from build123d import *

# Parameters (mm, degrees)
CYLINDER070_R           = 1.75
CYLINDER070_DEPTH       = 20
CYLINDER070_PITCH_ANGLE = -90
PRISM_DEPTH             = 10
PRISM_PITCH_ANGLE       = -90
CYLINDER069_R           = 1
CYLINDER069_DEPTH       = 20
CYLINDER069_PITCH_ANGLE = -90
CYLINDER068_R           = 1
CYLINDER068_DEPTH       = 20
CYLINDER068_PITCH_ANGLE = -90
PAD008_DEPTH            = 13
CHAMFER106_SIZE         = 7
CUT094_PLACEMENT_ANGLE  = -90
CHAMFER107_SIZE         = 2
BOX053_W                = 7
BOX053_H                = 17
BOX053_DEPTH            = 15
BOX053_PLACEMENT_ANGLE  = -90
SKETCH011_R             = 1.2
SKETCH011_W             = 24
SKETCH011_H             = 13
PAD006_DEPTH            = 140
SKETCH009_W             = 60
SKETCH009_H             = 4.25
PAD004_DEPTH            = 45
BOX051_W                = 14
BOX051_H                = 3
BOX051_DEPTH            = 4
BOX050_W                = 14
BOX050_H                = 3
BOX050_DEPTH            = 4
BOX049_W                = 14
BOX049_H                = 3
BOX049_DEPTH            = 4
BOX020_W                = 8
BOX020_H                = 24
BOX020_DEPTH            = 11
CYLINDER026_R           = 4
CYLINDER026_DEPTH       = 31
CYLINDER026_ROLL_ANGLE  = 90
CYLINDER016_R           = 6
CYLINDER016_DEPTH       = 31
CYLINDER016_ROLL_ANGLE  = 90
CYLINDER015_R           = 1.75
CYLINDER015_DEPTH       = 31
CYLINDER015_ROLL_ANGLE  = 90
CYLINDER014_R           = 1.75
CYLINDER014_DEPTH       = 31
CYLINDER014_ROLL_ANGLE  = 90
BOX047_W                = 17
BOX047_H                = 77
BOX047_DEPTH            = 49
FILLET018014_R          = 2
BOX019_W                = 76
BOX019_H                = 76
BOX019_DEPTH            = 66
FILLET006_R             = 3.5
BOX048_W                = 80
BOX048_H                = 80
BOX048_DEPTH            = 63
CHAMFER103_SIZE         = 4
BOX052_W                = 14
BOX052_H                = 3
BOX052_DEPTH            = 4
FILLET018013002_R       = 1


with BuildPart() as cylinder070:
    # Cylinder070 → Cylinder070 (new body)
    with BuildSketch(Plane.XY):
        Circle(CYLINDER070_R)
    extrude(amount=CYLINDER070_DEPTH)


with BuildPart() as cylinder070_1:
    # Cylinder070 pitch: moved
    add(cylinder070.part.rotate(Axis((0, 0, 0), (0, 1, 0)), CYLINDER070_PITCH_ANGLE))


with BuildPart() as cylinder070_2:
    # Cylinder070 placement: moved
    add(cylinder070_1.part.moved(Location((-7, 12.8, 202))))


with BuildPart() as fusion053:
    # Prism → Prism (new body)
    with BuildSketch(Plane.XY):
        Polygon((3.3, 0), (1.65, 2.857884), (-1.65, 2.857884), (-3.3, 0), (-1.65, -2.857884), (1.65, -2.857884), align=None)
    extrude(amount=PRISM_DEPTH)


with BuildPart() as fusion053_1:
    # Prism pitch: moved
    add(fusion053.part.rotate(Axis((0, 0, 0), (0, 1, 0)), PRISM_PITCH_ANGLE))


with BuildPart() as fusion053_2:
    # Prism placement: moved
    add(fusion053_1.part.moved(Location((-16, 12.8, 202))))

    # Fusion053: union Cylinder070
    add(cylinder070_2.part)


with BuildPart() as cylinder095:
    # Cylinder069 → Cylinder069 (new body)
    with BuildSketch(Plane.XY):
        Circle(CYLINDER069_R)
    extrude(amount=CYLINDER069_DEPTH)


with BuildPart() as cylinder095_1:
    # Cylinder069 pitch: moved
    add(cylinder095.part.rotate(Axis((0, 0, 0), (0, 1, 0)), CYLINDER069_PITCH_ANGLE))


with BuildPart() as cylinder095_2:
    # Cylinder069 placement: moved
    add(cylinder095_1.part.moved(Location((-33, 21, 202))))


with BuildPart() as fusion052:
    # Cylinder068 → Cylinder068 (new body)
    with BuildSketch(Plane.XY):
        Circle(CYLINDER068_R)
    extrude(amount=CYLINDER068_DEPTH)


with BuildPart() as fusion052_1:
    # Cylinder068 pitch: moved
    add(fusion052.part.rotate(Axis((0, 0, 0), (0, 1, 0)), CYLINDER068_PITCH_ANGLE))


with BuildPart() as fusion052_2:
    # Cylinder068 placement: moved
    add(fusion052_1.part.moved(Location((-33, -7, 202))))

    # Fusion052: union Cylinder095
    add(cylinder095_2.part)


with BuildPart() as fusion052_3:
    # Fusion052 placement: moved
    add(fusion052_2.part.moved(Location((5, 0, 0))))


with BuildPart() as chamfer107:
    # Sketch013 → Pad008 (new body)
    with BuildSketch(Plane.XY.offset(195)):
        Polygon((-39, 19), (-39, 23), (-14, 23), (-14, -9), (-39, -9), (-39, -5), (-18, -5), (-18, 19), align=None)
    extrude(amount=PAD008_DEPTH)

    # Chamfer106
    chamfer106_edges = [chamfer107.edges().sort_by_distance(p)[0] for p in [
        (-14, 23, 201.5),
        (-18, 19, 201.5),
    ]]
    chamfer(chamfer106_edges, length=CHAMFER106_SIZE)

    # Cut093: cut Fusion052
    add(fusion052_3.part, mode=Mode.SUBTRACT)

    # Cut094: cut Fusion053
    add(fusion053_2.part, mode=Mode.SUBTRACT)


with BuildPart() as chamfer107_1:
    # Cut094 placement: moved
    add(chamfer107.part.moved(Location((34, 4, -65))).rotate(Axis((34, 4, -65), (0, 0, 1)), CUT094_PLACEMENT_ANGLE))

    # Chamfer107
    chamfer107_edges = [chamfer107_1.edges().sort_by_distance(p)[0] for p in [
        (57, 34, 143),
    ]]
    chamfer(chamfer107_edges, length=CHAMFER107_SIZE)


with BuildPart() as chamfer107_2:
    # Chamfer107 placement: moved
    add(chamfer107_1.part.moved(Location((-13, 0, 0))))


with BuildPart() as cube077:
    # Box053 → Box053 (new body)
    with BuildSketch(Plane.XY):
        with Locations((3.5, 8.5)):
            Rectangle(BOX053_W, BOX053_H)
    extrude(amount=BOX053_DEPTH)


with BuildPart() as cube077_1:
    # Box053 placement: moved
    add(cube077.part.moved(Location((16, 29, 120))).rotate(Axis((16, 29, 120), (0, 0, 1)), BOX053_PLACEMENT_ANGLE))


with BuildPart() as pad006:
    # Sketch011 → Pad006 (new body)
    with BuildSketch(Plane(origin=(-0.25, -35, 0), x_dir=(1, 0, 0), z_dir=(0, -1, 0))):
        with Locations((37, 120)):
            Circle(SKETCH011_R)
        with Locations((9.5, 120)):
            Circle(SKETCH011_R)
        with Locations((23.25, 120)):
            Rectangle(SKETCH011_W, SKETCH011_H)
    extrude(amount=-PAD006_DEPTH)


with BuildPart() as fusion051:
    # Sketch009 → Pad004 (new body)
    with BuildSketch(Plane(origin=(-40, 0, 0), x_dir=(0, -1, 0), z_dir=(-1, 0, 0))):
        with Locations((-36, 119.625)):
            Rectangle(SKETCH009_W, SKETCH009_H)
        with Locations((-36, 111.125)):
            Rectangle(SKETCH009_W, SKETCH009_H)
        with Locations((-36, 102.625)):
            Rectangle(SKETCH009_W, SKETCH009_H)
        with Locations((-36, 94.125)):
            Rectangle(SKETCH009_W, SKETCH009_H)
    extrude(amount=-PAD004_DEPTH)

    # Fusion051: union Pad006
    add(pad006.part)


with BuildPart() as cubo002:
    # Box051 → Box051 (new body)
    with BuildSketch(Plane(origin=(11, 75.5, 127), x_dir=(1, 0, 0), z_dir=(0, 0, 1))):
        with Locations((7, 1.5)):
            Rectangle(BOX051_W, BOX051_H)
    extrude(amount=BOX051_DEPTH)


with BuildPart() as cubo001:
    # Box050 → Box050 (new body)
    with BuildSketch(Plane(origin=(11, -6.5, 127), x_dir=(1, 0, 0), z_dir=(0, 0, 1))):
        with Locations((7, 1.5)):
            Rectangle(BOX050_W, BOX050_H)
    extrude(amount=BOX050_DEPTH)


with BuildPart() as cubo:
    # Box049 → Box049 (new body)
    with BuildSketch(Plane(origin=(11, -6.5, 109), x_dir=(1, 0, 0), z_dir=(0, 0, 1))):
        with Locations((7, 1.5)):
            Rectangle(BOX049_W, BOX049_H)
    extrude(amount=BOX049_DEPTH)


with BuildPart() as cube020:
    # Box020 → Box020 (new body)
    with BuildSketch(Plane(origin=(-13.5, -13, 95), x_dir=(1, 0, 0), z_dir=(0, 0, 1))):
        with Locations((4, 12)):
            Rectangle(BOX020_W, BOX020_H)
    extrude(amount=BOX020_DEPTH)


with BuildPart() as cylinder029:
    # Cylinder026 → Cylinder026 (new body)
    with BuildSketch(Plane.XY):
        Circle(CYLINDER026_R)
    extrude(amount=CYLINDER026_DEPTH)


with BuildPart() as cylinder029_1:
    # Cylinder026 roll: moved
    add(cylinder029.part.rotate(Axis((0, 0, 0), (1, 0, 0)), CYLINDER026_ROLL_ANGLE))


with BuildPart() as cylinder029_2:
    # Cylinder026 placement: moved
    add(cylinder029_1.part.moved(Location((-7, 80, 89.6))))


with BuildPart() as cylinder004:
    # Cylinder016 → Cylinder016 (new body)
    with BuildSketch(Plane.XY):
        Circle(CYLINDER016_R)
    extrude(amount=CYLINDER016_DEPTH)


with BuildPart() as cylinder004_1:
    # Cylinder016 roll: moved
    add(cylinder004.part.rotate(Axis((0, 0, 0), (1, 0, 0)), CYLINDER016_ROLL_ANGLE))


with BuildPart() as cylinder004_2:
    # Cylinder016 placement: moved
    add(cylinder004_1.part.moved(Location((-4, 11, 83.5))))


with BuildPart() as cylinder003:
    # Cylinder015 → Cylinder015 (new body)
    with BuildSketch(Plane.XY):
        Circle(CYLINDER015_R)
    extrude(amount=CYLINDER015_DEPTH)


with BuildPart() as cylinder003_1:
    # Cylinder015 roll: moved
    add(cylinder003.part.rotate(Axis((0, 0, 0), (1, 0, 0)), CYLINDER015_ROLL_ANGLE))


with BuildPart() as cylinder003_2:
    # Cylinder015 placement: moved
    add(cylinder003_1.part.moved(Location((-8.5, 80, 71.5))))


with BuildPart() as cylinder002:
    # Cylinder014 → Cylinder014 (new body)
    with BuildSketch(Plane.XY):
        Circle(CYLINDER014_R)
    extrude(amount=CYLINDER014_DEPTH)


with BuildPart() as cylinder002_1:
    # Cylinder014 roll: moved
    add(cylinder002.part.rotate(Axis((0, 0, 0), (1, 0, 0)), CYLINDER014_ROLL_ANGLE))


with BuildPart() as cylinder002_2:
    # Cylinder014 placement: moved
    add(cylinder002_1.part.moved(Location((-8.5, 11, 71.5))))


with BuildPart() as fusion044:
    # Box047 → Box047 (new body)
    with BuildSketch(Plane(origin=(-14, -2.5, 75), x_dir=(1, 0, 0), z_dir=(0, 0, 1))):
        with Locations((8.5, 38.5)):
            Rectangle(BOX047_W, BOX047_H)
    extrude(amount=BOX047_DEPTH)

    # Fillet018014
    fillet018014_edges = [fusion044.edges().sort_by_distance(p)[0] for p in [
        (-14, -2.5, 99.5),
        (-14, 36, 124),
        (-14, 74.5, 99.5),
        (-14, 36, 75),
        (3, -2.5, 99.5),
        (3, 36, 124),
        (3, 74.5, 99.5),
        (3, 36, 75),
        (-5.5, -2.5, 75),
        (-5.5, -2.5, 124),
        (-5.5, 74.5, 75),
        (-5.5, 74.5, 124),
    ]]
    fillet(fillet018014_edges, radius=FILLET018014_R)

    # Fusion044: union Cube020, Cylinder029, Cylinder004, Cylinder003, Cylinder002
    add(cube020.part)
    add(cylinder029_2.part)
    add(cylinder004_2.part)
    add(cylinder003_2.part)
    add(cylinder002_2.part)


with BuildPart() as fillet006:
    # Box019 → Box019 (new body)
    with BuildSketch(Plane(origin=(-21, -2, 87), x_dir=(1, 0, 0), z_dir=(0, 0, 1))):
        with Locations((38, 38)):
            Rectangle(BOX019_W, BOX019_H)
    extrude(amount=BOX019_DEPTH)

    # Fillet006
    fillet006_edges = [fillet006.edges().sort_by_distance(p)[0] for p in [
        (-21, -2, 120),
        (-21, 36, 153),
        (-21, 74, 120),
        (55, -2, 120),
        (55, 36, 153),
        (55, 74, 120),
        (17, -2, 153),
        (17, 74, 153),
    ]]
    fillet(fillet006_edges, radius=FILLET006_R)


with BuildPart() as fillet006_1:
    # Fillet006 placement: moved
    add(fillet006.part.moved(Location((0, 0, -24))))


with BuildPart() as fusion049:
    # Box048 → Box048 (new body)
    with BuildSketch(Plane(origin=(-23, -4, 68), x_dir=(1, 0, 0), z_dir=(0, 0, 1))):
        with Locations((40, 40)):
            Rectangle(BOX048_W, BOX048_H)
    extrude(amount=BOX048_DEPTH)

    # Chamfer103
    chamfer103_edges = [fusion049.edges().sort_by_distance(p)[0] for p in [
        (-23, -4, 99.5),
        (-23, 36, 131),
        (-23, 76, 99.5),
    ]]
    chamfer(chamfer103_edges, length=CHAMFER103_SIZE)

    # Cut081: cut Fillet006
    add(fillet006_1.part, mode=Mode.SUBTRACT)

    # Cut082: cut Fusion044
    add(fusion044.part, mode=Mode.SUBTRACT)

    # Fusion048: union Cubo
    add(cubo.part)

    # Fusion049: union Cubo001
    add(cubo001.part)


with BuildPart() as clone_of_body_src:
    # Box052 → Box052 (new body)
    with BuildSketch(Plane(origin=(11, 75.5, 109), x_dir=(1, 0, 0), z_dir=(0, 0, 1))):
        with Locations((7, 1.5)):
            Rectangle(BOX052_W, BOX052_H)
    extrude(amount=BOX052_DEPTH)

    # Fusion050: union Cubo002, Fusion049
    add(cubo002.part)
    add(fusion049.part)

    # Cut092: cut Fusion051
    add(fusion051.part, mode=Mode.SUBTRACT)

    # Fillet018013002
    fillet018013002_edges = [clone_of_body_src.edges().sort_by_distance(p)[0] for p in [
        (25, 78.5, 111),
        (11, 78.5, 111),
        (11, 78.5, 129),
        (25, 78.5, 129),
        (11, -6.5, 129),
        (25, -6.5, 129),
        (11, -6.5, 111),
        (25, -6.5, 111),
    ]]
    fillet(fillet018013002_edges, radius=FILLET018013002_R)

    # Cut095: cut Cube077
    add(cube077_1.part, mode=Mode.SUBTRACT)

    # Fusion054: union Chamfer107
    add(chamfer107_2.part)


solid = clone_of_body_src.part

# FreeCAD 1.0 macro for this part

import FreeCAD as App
import Part
import Sketcher
from FreeCAD import Vector
Q = App.Units.Quantity


def edges_at(feature, points):
    """Names of the edges that pass closest to the given points."""
    edges = feature.Shape.Edges
    near = lambda p: min(range(len(edges)), key=lambda i: edges[i].distToShape(Part.Vertex(*p))[0])
    return sorted({f"Edge{near(p) + 1}" for p in points})


def add_polygon(sketch, points):
    """Adds a closed chain of lines whose ends are joined by coincident constraints."""
    first, n = sketch.GeometryCount, len(points)
    for a, b in zip(points, points[1:] + points[:1]):
        sketch.addGeometry(Part.LineSegment(App.Vector(*a, 0), App.Vector(*b, 0)), False)
    for i in range(n):
        sketch.addConstraint(Sketcher.Constraint("Coincident", first + i, 2, first + (i + 1) % n, 1))

doc = App.newDocument("Part")
body = doc.addObject("PartDesign::Body", "Body")

sketch1 = body.newObject("Sketcher::SketchObject", "Sketch")
sketch1.AttachmentSupport = (doc.getObject("XY_Plane"), [""])
sketch1.MapMode = "FlatFace"
sketch1.addGeometry(Part.Circle(Vector(0, 0, 0), Vector(0, 0, 1), 1.8), False)
sketch1.addConstraint([
    Sketcher.Constraint("Coincident", 0, 3, -1, 1),
    Sketcher.Constraint("Diameter", 0, 3.5),
])
pad1 = body.newObject("PartDesign::Pad", "Pad")
pad1.Profile = sketch1
pad1.Length = 20
body2 = doc.addObject("PartDesign::Body", "Body001")
doc.recompute()

body.Placement = App.Placement(Vector(0, 0, 0), App.Rotation(Vector(0, 1, 0), 270))
boolean = body2.newObject("PartDesign::Boolean", "Boolean")
boolean.Type = "Fuse"
boolean.addObjects([body])
body3 = doc.addObject("PartDesign::Body", "Body002")
doc.recompute()

body2.Placement = App.Placement(Vector(-7, 12.8, 202), App.Rotation(Vector(0, 0, 1), 0))
boolean2 = body3.newObject("PartDesign::Boolean", "Boolean001")
boolean2.Type = "Fuse"
boolean2.addObjects([body2])
body4 = doc.addObject("PartDesign::Body", "Body003")

sketch2 = body4.newObject("Sketcher::SketchObject", "Sketch001")
sketch2.AttachmentSupport = (doc.getObject("XY_Plane003"), [""])
sketch2.MapMode = "FlatFace"
add_polygon(sketch2, [(3.3, 0), (1.6, 2.9), (-1.6, 2.9), (-3.3, 0), (-1.6, -2.9), (1.6, -2.9)])
sketch2.addConstraint([
    Sketcher.Constraint("Horizontal", 1),
    Sketcher.Constraint("Horizontal", 4),
    Sketcher.Constraint("Symmetric", 0, 2, 3, 2, -1, 1),
    Sketcher.Constraint("Symmetric", 2, 2, 5, 2, -1, 1),
    Sketcher.Constraint("PointOnObject", 2, 2, -1),
    Sketcher.Constraint("Parallel", 2, 5),
    Sketcher.Constraint("Vertical", 1, 2, 3, 2),
    Sketcher.Constraint("Angle", 0, Q("119.999999 deg")),
    Sketcher.Constraint("DistanceX", 1, 2, 1, 1, 3.3),
    Sketcher.Constraint("Distance", 0, 3.3),
])
pad2 = body4.newObject("PartDesign::Pad", "Pad001")
pad2.Profile = sketch2
pad2.Length = 10
body5 = doc.addObject("PartDesign::Body", "Body004")
doc.recompute()

body4.Placement = App.Placement(Vector(0, 0, 0), App.Rotation(Vector(0, 1, 0), 270))
boolean3 = body5.newObject("PartDesign::Boolean", "Boolean002")
boolean3.Type = "Fuse"
boolean3.addObjects([body4])
body6 = doc.addObject("PartDesign::Body", "Body005")
doc.recompute()

body5.Placement = App.Placement(Vector(-16, 12.8, 202), App.Rotation(Vector(0, 0, 1), 0))
boolean4 = body6.newObject("PartDesign::Boolean", "Boolean003")
boolean4.Type = "Fuse"
boolean4.addObjects([body5])
doc.recompute()

boolean5 = body6.newObject("PartDesign::Boolean", "Boolean004")
boolean5.Type = "Fuse"
boolean5.addObjects([body3])
body7 = doc.addObject("PartDesign::Body", "Body006")

sketch3 = body7.newObject("Sketcher::SketchObject", "Sketch002")
sketch3.AttachmentSupport = (doc.getObject("XY_Plane006"), [""])
sketch3.MapMode = "FlatFace"
sketch3.addGeometry(Part.Circle(Vector(0, 0, 0), Vector(0, 0, 1), 1), False)
sketch3.addConstraint([
    Sketcher.Constraint("Coincident", 0, 3, -1, 1),
    Sketcher.Constraint("Diameter", 0, 2.0),
])
pad3 = body7.newObject("PartDesign::Pad", "Pad002")
pad3.Profile = sketch3
pad3.Length = 20
body8 = doc.addObject("PartDesign::Body", "Body007")
doc.recompute()

body7.Placement = App.Placement(Vector(0, 0, 0), App.Rotation(Vector(0, 1, 0), 270))
boolean6 = body8.newObject("PartDesign::Boolean", "Boolean005")
boolean6.Type = "Fuse"
boolean6.addObjects([body7])
body9 = doc.addObject("PartDesign::Body", "Body008")
doc.recompute()

body8.Placement = App.Placement(Vector(-33, 21, 202), App.Rotation(Vector(0, 0, 1), 0))
boolean7 = body9.newObject("PartDesign::Boolean", "Boolean006")
boolean7.Type = "Fuse"
boolean7.addObjects([body8])
body10 = doc.addObject("PartDesign::Body", "Body009")

sketch4 = body10.newObject("Sketcher::SketchObject", "Sketch003")
sketch4.AttachmentSupport = (doc.getObject("XY_Plane009"), [""])
sketch4.MapMode = "FlatFace"
sketch4.addGeometry(Part.Circle(Vector(0, 0, 0), Vector(0, 0, 1), 1), False)
sketch4.addConstraint([
    Sketcher.Constraint("Coincident", 0, 3, -1, 1),
    Sketcher.Constraint("Diameter", 0, 2.0),
])
pad4 = body10.newObject("PartDesign::Pad", "Pad003")
pad4.Profile = sketch4
pad4.Length = 20
body11 = doc.addObject("PartDesign::Body", "Body010")
doc.recompute()

body10.Placement = App.Placement(Vector(0, 0, 0), App.Rotation(Vector(0, 1, 0), 270))
boolean8 = body11.newObject("PartDesign::Boolean", "Boolean007")
boolean8.Type = "Fuse"
boolean8.addObjects([body10])
body12 = doc.addObject("PartDesign::Body", "Body011")
body12.AllowCompound = True
doc.recompute()

body11.Placement = App.Placement(Vector(-33, -7, 202), App.Rotation(Vector(0, 0, 1), 0))
boolean9 = body12.newObject("PartDesign::Boolean", "Boolean008")
boolean9.Type = "Fuse"
boolean9.addObjects([body11])
doc.recompute()

boolean10 = body12.newObject("PartDesign::Boolean", "Boolean009")
boolean10.Type = "Fuse"
boolean10.addObjects([body9])
body13 = doc.addObject("PartDesign::Body", "Body012")
body13.AllowCompound = True
doc.recompute()

body12.Placement = App.Placement(Vector(5, 0, 0), App.Rotation(Vector(0, 0, 1), 0))
boolean11 = body13.newObject("PartDesign::Boolean", "Boolean010")
boolean11.Type = "Fuse"
boolean11.addObjects([body12])
body14 = doc.addObject("PartDesign::Body", "Body013")

sketch5 = body14.newObject("Sketcher::SketchObject", "Sketch004")
sketch5.AttachmentSupport = (doc.getObject("XY_Plane013"), [""])
sketch5.MapMode = "FlatFace"
sketch5.AttachmentOffset = App.Placement(Vector(0, 0, 195), App.Rotation())
add_polygon(sketch5, [(-39, 23), (-39, 19), (-18, 19), (-18, -5), (-39, -5), (-39, -9), (-14, -9), (-14, 23)])
sketch5.addConstraint([
    Sketcher.Constraint("Vertical", 0),
    Sketcher.Constraint("Horizontal", 1),
    Sketcher.Constraint("Vertical", 2),
    Sketcher.Constraint("Horizontal", 3),
    Sketcher.Constraint("Vertical", 4),
    Sketcher.Constraint("Horizontal", 5),
    Sketcher.Constraint("Vertical", 6),
    Sketcher.Constraint("Horizontal", 7),
    Sketcher.Constraint("Vertical", 0, 2, 3, 2),
    Sketcher.Constraint("Equal", 0, 4),
    Sketcher.Constraint("DistanceX", 1, 1, 1, 2, 21.0),
    Sketcher.Constraint("DistanceX", 5, 1, 5, 2, 25.0),
    Sketcher.Constraint("DistanceY", 0, 2, 0, 1, 4.0),
    Sketcher.Constraint("DistanceY", 2, 2, 2, 1, 24.0),
    Sketcher.Constraint("DistanceX", 0, 2, -1, 1, 39.0),
    Sketcher.Constraint("DistanceY", -1, 1, 0, 2, 19.0),
])
pad5 = body14.newObject("PartDesign::Pad", "Pad004")
pad5.Profile = sketch5
pad5.Length = 13
doc.recompute()

chamfer = body14.newObject("PartDesign::Chamfer", "Chamfer")
chamfer.Base = (pad5, edges_at(pad5, [(-14, 23, 201.5), (-18, 19, 201.5)]))
chamfer.Size = 7
doc.recompute()

boolean12 = body14.newObject("PartDesign::Boolean", "Boolean011")
boolean12.Type = "Cut"
boolean12.addObjects([body13])
doc.recompute()

boolean13 = body14.newObject("PartDesign::Boolean", "Boolean012")
boolean13.Type = "Cut"
boolean13.addObjects([body6])
body15 = doc.addObject("PartDesign::Body", "Body014")
doc.recompute()

body14.Placement = App.Placement(Vector(34, 4, -65), App.Rotation(Vector(0, 0, 1), 270))
boolean14 = body15.newObject("PartDesign::Boolean", "Boolean013")
boolean14.Type = "Fuse"
boolean14.addObjects([body14])
doc.recompute()

chamfer2 = body15.newObject("PartDesign::Chamfer", "Chamfer001")
chamfer2.Base = (boolean14, edges_at(boolean14, [(57, 34, 143)]))
chamfer2.Size = 2
body16 = doc.addObject("PartDesign::Body", "Body015")
doc.recompute()

body15.Placement = App.Placement(Vector(-13, 0, 0), App.Rotation(Vector(0, 0, 1), 0))
boolean15 = body16.newObject("PartDesign::Boolean", "Boolean014")
boolean15.Type = "Fuse"
boolean15.addObjects([body15])
body17 = doc.addObject("PartDesign::Body", "Body016")

sketch6 = body17.newObject("Sketcher::SketchObject", "Sketch005")
sketch6.AttachmentSupport = (doc.getObject("XY_Plane016"), [""])
sketch6.MapMode = "FlatFace"
add_polygon(sketch6, [(0, 17), (0, 0), (7, 0), (7, 17)])
sketch6.addConstraint([
    Sketcher.Constraint("Vertical", 0),
    Sketcher.Constraint("Horizontal", 1),
    Sketcher.Constraint("Vertical", 2),
    Sketcher.Constraint("Horizontal", 3),
    Sketcher.Constraint("Coincident", 0, 2, -1, 1),
    Sketcher.Constraint("DistanceX", 1, 1, 1, 2, 7.0),
    Sketcher.Constraint("DistanceY", 0, 2, 0, 1, 17.0),
])
pad6 = body17.newObject("PartDesign::Pad", "Pad005")
pad6.Profile = sketch6
pad6.Length = 15
body18 = doc.addObject("PartDesign::Body", "Body017")
doc.recompute()

body17.Placement = App.Placement(Vector(16, 29, 120), App.Rotation(Vector(0, 0, 1), 270))
boolean16 = body18.newObject("PartDesign::Boolean", "Boolean015")
boolean16.Type = "Fuse"
boolean16.addObjects([body17])
body19 = doc.addObject("PartDesign::Body", "Body018")
body19.AllowCompound = True

sketch7 = body19.newObject("Sketcher::SketchObject", "Sketch006")
sketch7.AttachmentSupport = (doc.getObject("XZ_Plane018"), [""])
sketch7.MapMode = "FlatFace"
sketch7.AttachmentOffset = App.Placement(Vector(0, 0, 35), App.Rotation())
sketch7.addGeometry(Part.Circle(Vector(36.8, 120, 0), Vector(0, 0, 1), 1.2), False)
sketch7.addGeometry(Part.Circle(Vector(9.2, 120, 0), Vector(0, 0, 1), 1.2), False)
add_polygon(sketch7, [(11, 126.5), (11, 113.5), (35, 113.5), (35, 126.5)])
sketch7.addConstraint([
    Sketcher.Constraint("Vertical", 2),
    Sketcher.Constraint("Horizontal", 3),
    Sketcher.Constraint("Vertical", 4),
    Sketcher.Constraint("Horizontal", 5),
    Sketcher.Constraint("Equal", 0, 1),
    Sketcher.Constraint("Horizontal", 0, 3, 1, 3),
    Sketcher.Constraint("Diameter", 0, 2.4),
    Sketcher.Constraint("DistanceX", 3, 1, 3, 2, 24.0),
    Sketcher.Constraint("DistanceY", 2, 2, 2, 1, 13.0),
    Sketcher.Constraint("DistanceY", -1, 1, 0, 3, 120.0),
    Sketcher.Constraint("DistanceX", -1, 1, 2, 2, 11.0),
    Sketcher.Constraint("DistanceY", -1, 1, 2, 2, 113.5),
    Sketcher.Constraint("DistanceX", 1, 3, 0, 3, 27.5),
    Sketcher.Constraint("DistanceX", -1, 1, 0, 3, 36.75),
])
pad7 = body19.newObject("PartDesign::Pad", "Pad006")
pad7.Profile = sketch7
pad7.Length = 140
pad7.Reversed = True
body20 = doc.addObject("PartDesign::Body", "Body019")
body20.AllowCompound = True

sketch8 = body20.newObject("Sketcher::SketchObject", "Sketch007")
sketch8.AttachmentSupport = (doc.getObject("YZ_Plane019"), [""])
sketch8.MapMode = "FlatFace"
sketch8.AttachmentOffset = App.Placement(Vector(0, 0, -40), App.Rotation())
add_polygon(sketch8, [(66, 121.8), (66, 117.5), (6, 117.5), (6, 121.8)])
add_polygon(sketch8, [(66, 113.2), (66, 109), (6, 109), (6, 113.2)])
add_polygon(sketch8, [(66, 104.8), (66, 100.5), (6, 100.5), (6, 104.8)])
add_polygon(sketch8, [(66, 96.2), (66, 92), (6, 92), (6, 96.2)])
sketch8.addConstraint([
    Sketcher.Constraint("Vertical", 0),
    Sketcher.Constraint("Horizontal", 1),
    Sketcher.Constraint("Vertical", 2),
    Sketcher.Constraint("Horizontal", 3),
    Sketcher.Constraint("Vertical", 4),
    Sketcher.Constraint("Horizontal", 5),
    Sketcher.Constraint("Vertical", 6),
    Sketcher.Constraint("Horizontal", 7),
    Sketcher.Constraint("Vertical", 8),
    Sketcher.Constraint("Horizontal", 9),
    Sketcher.Constraint("Vertical", 10),
    Sketcher.Constraint("Horizontal", 11),
    Sketcher.Constraint("Vertical", 12),
    Sketcher.Constraint("Horizontal", 13),
    Sketcher.Constraint("Vertical", 14),
    Sketcher.Constraint("Horizontal", 15),
    Sketcher.Constraint("Vertical", 3, 2, 4, 2),
    Sketcher.Constraint("Vertical", 2, 2, 5, 2),
    Sketcher.Constraint("Vertical", 7, 2, 8, 2),
    Sketcher.Constraint("Vertical", 6, 2, 9, 2),
    Sketcher.Constraint("Vertical", 11, 2, 12, 2),
    Sketcher.Constraint("Vertical", 10, 2, 13, 2),
    Sketcher.Constraint("Equal", 2, 4),
    Sketcher.Constraint("Equal", 6, 8),
    Sketcher.Constraint("Equal", 10, 12),
    Sketcher.Constraint("DistanceX", 1, 2, 1, 1, 60.0),
    Sketcher.Constraint("DistanceX", -1, 1, 0, 2, 66.0),
    Sketcher.Constraint("DistanceY", -1, 1, 4, 2, 109.0),
    Sketcher.Constraint("DistanceY", -1, 1, 12, 2, 92.0),
    Sketcher.Constraint("DistanceY", 8, 2, 0, 2, 17.0),
    Sketcher.Constraint("DistanceY", 0, 2, 0, 1, 4.25),
    Sketcher.Constraint("DistanceY", -1, 1, 0, 2, 117.5),
])
pad8 = body20.newObject("PartDesign::Pad", "Pad007")
pad8.Profile = sketch8
pad8.Length = 45
doc.recompute()

boolean17 = body20.newObject("PartDesign::Boolean", "Boolean016")
boolean17.Type = "Fuse"
boolean17.addObjects([body19])
body21 = doc.addObject("PartDesign::Body", "Body020")

sketch9 = body21.newObject("Sketcher::SketchObject", "Sketch008")
sketch9.AttachmentSupport = (doc.getObject("XY_Plane020"), [""])
sketch9.MapMode = "FlatFace"
sketch9.AttachmentOffset = App.Placement(Vector(0, 0, 127), App.Rotation())
add_polygon(sketch9, [(11, 78.5), (11, 75.5), (25, 75.5), (25, 78.5)])
sketch9.addConstraint([
    Sketcher.Constraint("Vertical", 0),
    Sketcher.Constraint("Horizontal", 1),
    Sketcher.Constraint("Vertical", 2),
    Sketcher.Constraint("Horizontal", 3),
    Sketcher.Constraint("DistanceX", 1, 1, 1, 2, 14.0),
    Sketcher.Constraint("DistanceY", 0, 2, 0, 1, 3.0),
    Sketcher.Constraint("DistanceX", -1, 1, 0, 2, 11.0),
    Sketcher.Constraint("DistanceY", -1, 1, 0, 2, 75.5),
])
pad9 = body21.newObject("PartDesign::Pad", "Pad008")
pad9.Profile = sketch9
pad9.Length = 4
body22 = doc.addObject("PartDesign::Body", "Body021")

sketch10 = body22.newObject("Sketcher::SketchObject", "Sketch009")
sketch10.AttachmentSupport = (doc.getObject("XY_Plane021"), [""])
sketch10.MapMode = "FlatFace"
sketch10.AttachmentOffset = App.Placement(Vector(0, 0, 127), App.Rotation())
add_polygon(sketch10, [(11, -3.5), (11, -6.5), (25, -6.5), (25, -3.5)])
sketch10.addConstraint([
    Sketcher.Constraint("Vertical", 0),
    Sketcher.Constraint("Horizontal", 1),
    Sketcher.Constraint("Vertical", 2),
    Sketcher.Constraint("Horizontal", 3),
    Sketcher.Constraint("DistanceX", 1, 1, 1, 2, 14.0),
    Sketcher.Constraint("DistanceY", 0, 2, 0, 1, 3.0),
    Sketcher.Constraint("DistanceX", -1, 1, 0, 2, 11.0),
    Sketcher.Constraint("DistanceY", 0, 2, -1, 1, 6.5),
])
pad10 = body22.newObject("PartDesign::Pad", "Pad009")
pad10.Profile = sketch10
pad10.Length = 4
body23 = doc.addObject("PartDesign::Body", "Body022")

sketch11 = body23.newObject("Sketcher::SketchObject", "Sketch010")
sketch11.AttachmentSupport = (doc.getObject("XY_Plane022"), [""])
sketch11.MapMode = "FlatFace"
sketch11.AttachmentOffset = App.Placement(Vector(0, 0, 109), App.Rotation())
add_polygon(sketch11, [(11, -3.5), (11, -6.5), (25, -6.5), (25, -3.5)])
sketch11.addConstraint([
    Sketcher.Constraint("Vertical", 0),
    Sketcher.Constraint("Horizontal", 1),
    Sketcher.Constraint("Vertical", 2),
    Sketcher.Constraint("Horizontal", 3),
    Sketcher.Constraint("DistanceX", 1, 1, 1, 2, 14.0),
    Sketcher.Constraint("DistanceY", 0, 2, 0, 1, 3.0),
    Sketcher.Constraint("DistanceX", -1, 1, 0, 2, 11.0),
    Sketcher.Constraint("DistanceY", 0, 2, -1, 1, 6.5),
])
pad11 = body23.newObject("PartDesign::Pad", "Pad010")
pad11.Profile = sketch11
pad11.Length = 4
body24 = doc.addObject("PartDesign::Body", "Body023")

sketch12 = body24.newObject("Sketcher::SketchObject", "Sketch011")
sketch12.AttachmentSupport = (doc.getObject("XY_Plane023"), [""])
sketch12.MapMode = "FlatFace"
sketch12.AttachmentOffset = App.Placement(Vector(0, 0, 95), App.Rotation())
add_polygon(sketch12, [(-14, 11), (-14, -13), (-6, -13), (-6, 11)])
sketch12.addConstraint([
    Sketcher.Constraint("Vertical", 0),
    Sketcher.Constraint("Horizontal", 1),
    Sketcher.Constraint("Vertical", 2),
    Sketcher.Constraint("Horizontal", 3),
    Sketcher.Constraint("DistanceX", 1, 1, 1, 2, 8.0),
    Sketcher.Constraint("DistanceY", 0, 2, 0, 1, 24.0),
    Sketcher.Constraint("DistanceY", 0, 2, -1, 1, 13.0),
    Sketcher.Constraint("DistanceX", 0, 2, -1, 1, 13.5),
])
pad12 = body24.newObject("PartDesign::Pad", "Pad011")
pad12.Profile = sketch12
pad12.Length = 11
body25 = doc.addObject("PartDesign::Body", "Body024")

sketch13 = body25.newObject("Sketcher::SketchObject", "Sketch012")
sketch13.AttachmentSupport = (doc.getObject("XY_Plane024"), [""])
sketch13.MapMode = "FlatFace"
sketch13.addGeometry(Part.Circle(Vector(0, 0, 0), Vector(0, 0, 1), 4), False)
sketch13.addConstraint([
    Sketcher.Constraint("Coincident", 0, 3, -1, 1),
    Sketcher.Constraint("Diameter", 0, 8.0),
])
pad13 = body25.newObject("PartDesign::Pad", "Pad012")
pad13.Profile = sketch13
pad13.Length = 31
body26 = doc.addObject("PartDesign::Body", "Body025")
doc.recompute()

body25.Placement = App.Placement(Vector(0, 0, 0), App.Rotation(Vector(1, 0, 0), 90))
boolean18 = body26.newObject("PartDesign::Boolean", "Boolean017")
boolean18.Type = "Fuse"
boolean18.addObjects([body25])
body27 = doc.addObject("PartDesign::Body", "Body026")
doc.recompute()

body26.Placement = App.Placement(Vector(-7, 80, 89.6), App.Rotation(Vector(0, 0, 1), 0))
boolean19 = body27.newObject("PartDesign::Boolean", "Boolean018")
boolean19.Type = "Fuse"
boolean19.addObjects([body26])
body28 = doc.addObject("PartDesign::Body", "Body027")

sketch14 = body28.newObject("Sketcher::SketchObject", "Sketch013")
sketch14.AttachmentSupport = (doc.getObject("XY_Plane027"), [""])
sketch14.MapMode = "FlatFace"
sketch14.addGeometry(Part.Circle(Vector(0, 0, 0), Vector(0, 0, 1), 6), False)
sketch14.addConstraint([
    Sketcher.Constraint("Coincident", 0, 3, -1, 1),
    Sketcher.Constraint("Diameter", 0, 12.0),
])
pad14 = body28.newObject("PartDesign::Pad", "Pad013")
pad14.Profile = sketch14
pad14.Length = 31
body29 = doc.addObject("PartDesign::Body", "Body028")
doc.recompute()

body28.Placement = App.Placement(Vector(0, 0, 0), App.Rotation(Vector(1, 0, 0), 90))
boolean20 = body29.newObject("PartDesign::Boolean", "Boolean019")
boolean20.Type = "Fuse"
boolean20.addObjects([body28])
body30 = doc.addObject("PartDesign::Body", "Body029")
doc.recompute()

body29.Placement = App.Placement(Vector(-4, 11, 83.5), App.Rotation(Vector(0, 0, 1), 0))
boolean21 = body30.newObject("PartDesign::Boolean", "Boolean020")
boolean21.Type = "Fuse"
boolean21.addObjects([body29])
body31 = doc.addObject("PartDesign::Body", "Body030")

sketch15 = body31.newObject("Sketcher::SketchObject", "Sketch014")
sketch15.AttachmentSupport = (doc.getObject("XY_Plane030"), [""])
sketch15.MapMode = "FlatFace"
sketch15.addGeometry(Part.Circle(Vector(0, 0, 0), Vector(0, 0, 1), 1.8), False)
sketch15.addConstraint([
    Sketcher.Constraint("Coincident", 0, 3, -1, 1),
    Sketcher.Constraint("Diameter", 0, 3.5),
])
pad15 = body31.newObject("PartDesign::Pad", "Pad014")
pad15.Profile = sketch15
pad15.Length = 31
body32 = doc.addObject("PartDesign::Body", "Body031")
doc.recompute()

body31.Placement = App.Placement(Vector(0, 0, 0), App.Rotation(Vector(1, 0, 0), 90))
boolean22 = body32.newObject("PartDesign::Boolean", "Boolean021")
boolean22.Type = "Fuse"
boolean22.addObjects([body31])
body33 = doc.addObject("PartDesign::Body", "Body032")
doc.recompute()

body32.Placement = App.Placement(Vector(-8.5, 80, 71.5), App.Rotation(Vector(0, 0, 1), 0))
boolean23 = body33.newObject("PartDesign::Boolean", "Boolean022")
boolean23.Type = "Fuse"
boolean23.addObjects([body32])
body34 = doc.addObject("PartDesign::Body", "Body033")

sketch16 = body34.newObject("Sketcher::SketchObject", "Sketch015")
sketch16.AttachmentSupport = (doc.getObject("XY_Plane033"), [""])
sketch16.MapMode = "FlatFace"
sketch16.addGeometry(Part.Circle(Vector(0, 0, 0), Vector(0, 0, 1), 1.8), False)
sketch16.addConstraint([
    Sketcher.Constraint("Coincident", 0, 3, -1, 1),
    Sketcher.Constraint("Diameter", 0, 3.5),
])
pad16 = body34.newObject("PartDesign::Pad", "Pad015")
pad16.Profile = sketch16
pad16.Length = 31
body35 = doc.addObject("PartDesign::Body", "Body034")
doc.recompute()

body34.Placement = App.Placement(Vector(0, 0, 0), App.Rotation(Vector(1, 0, 0), 90))
boolean24 = body35.newObject("PartDesign::Boolean", "Boolean023")
boolean24.Type = "Fuse"
boolean24.addObjects([body34])
body36 = doc.addObject("PartDesign::Body", "Body035")
doc.recompute()

body35.Placement = App.Placement(Vector(-8.5, 11, 71.5), App.Rotation(Vector(0, 0, 1), 0))
boolean25 = body36.newObject("PartDesign::Boolean", "Boolean024")
boolean25.Type = "Fuse"
boolean25.addObjects([body35])
body37 = doc.addObject("PartDesign::Body", "Body036")
body37.AllowCompound = True

sketch17 = body37.newObject("Sketcher::SketchObject", "Sketch016")
sketch17.AttachmentSupport = (doc.getObject("XY_Plane036"), [""])
sketch17.MapMode = "FlatFace"
sketch17.AttachmentOffset = App.Placement(Vector(0, 0, 75), App.Rotation())
add_polygon(sketch17, [(-14, 74), (-14, -2), (3, -2), (3, 74)])
sketch17.addConstraint([
    Sketcher.Constraint("Vertical", 0),
    Sketcher.Constraint("Horizontal", 1),
    Sketcher.Constraint("Vertical", 2),
    Sketcher.Constraint("Horizontal", 3),
    Sketcher.Constraint("DistanceX", 1, 1, 1, 2, 17.0),
    Sketcher.Constraint("DistanceY", 0, 2, 0, 1, 77.0),
    Sketcher.Constraint("DistanceX", 0, 2, -1, 1, 14.0),
    Sketcher.Constraint("DistanceY", 0, 2, -1, 1, 2.5),
])
pad17 = body37.newObject("PartDesign::Pad", "Pad016")
pad17.Profile = sketch17
pad17.Length = 49
doc.recompute()

fillet = body37.newObject("PartDesign::Fillet", "Fillet")
fillet.Base = (pad17, ["Edge1"])
fillet.UseAllEdges = True
fillet.Radius = 2
doc.recompute()

boolean26 = body37.newObject("PartDesign::Boolean", "Boolean025")
boolean26.Type = "Fuse"
boolean26.addObjects([body24])
doc.recompute()

boolean27 = body37.newObject("PartDesign::Boolean", "Boolean026")
boolean27.Type = "Fuse"
boolean27.addObjects([body27])
doc.recompute()

boolean28 = body37.newObject("PartDesign::Boolean", "Boolean027")
boolean28.Type = "Fuse"
boolean28.addObjects([body30])
doc.recompute()

boolean29 = body37.newObject("PartDesign::Boolean", "Boolean028")
boolean29.Type = "Fuse"
boolean29.addObjects([body33])
doc.recompute()

boolean30 = body37.newObject("PartDesign::Boolean", "Boolean029")
boolean30.Type = "Fuse"
boolean30.addObjects([body36])
body38 = doc.addObject("PartDesign::Body", "Body037")

sketch18 = body38.newObject("Sketcher::SketchObject", "Sketch017")
sketch18.AttachmentSupport = (doc.getObject("XY_Plane037"), [""])
sketch18.MapMode = "FlatFace"
sketch18.AttachmentOffset = App.Placement(Vector(0, 0, 87), App.Rotation())
add_polygon(sketch18, [(-21, 74), (-21, -2), (55, -2), (55, 74)])
sketch18.addConstraint([
    Sketcher.Constraint("Vertical", 0),
    Sketcher.Constraint("Horizontal", 1),
    Sketcher.Constraint("Vertical", 2),
    Sketcher.Constraint("Horizontal", 3),
    Sketcher.Constraint("Equal", 3, 0),
    Sketcher.Constraint("DistanceX", 1, 1, 1, 2, 76.0),
    Sketcher.Constraint("DistanceX", 0, 2, -1, 1, 21.0),
    Sketcher.Constraint("DistanceY", 0, 2, -1, 1, 2.0),
])
pad18 = body38.newObject("PartDesign::Pad", "Pad017")
pad18.Profile = sketch18
pad18.Length = 66
doc.recompute()

fillet2 = body38.newObject("PartDesign::Fillet", "Fillet001")
fillet2.Base = (pad18, edges_at(pad18, [
    (-21, -2, 120),
    (-21, 36, 153),
    (-21, 74, 120),
    (55, -2, 120),
    (55, 36, 153),
    (55, 74, 120),
    (17, -2, 153),
    (17, 74, 153),
]))
fillet2.Radius = 3.5
body39 = doc.addObject("PartDesign::Body", "Body038")
doc.recompute()

body38.Placement = App.Placement(Vector(0, 0, -24), App.Rotation(Vector(0, 0, 1), 0))
boolean31 = body39.newObject("PartDesign::Boolean", "Boolean030")
boolean31.Type = "Fuse"
boolean31.addObjects([body38])
body40 = doc.addObject("PartDesign::Body", "Body039")

sketch19 = body40.newObject("Sketcher::SketchObject", "Sketch018")
sketch19.AttachmentSupport = (doc.getObject("XY_Plane039"), [""])
sketch19.MapMode = "FlatFace"
sketch19.AttachmentOffset = App.Placement(Vector(0, 0, 68), App.Rotation())
add_polygon(sketch19, [(-23, 76), (-23, -4), (57, -4), (57, 76)])
sketch19.addConstraint([
    Sketcher.Constraint("Vertical", 0),
    Sketcher.Constraint("Horizontal", 1),
    Sketcher.Constraint("Vertical", 2),
    Sketcher.Constraint("Horizontal", 3),
    Sketcher.Constraint("Equal", 3, 0),
    Sketcher.Constraint("DistanceX", 1, 1, 1, 2, 80.0),
    Sketcher.Constraint("DistanceX", 0, 2, -1, 1, 23.0),
    Sketcher.Constraint("DistanceY", 0, 2, -1, 1, 4.0),
])
pad19 = body40.newObject("PartDesign::Pad", "Pad018")
pad19.Profile = sketch19
pad19.Length = 63
doc.recompute()

chamfer3 = body40.newObject("PartDesign::Chamfer", "Chamfer002")
chamfer3.Base = (pad19, edges_at(pad19, [(-23, -4, 99.5), (-23, 36, 131), (-23, 76, 99.5)]))
chamfer3.Size = 4
doc.recompute()

boolean32 = body40.newObject("PartDesign::Boolean", "Boolean031")
boolean32.Type = "Cut"
boolean32.addObjects([body39])
doc.recompute()

boolean33 = body40.newObject("PartDesign::Boolean", "Boolean032")
boolean33.Type = "Cut"
boolean33.addObjects([body37])
doc.recompute()

boolean34 = body40.newObject("PartDesign::Boolean", "Boolean033")
boolean34.Type = "Fuse"
boolean34.addObjects([body23])
doc.recompute()

boolean35 = body40.newObject("PartDesign::Boolean", "Boolean034")
boolean35.Type = "Fuse"
boolean35.addObjects([body22])
body41 = doc.addObject("PartDesign::Body", "Body040")
body41.AllowCompound = True

sketch20 = body41.newObject("Sketcher::SketchObject", "Sketch019")
sketch20.AttachmentSupport = (doc.getObject("XY_Plane040"), [""])
sketch20.MapMode = "FlatFace"
sketch20.AttachmentOffset = App.Placement(Vector(0, 0, 109), App.Rotation())
add_polygon(sketch20, [(11, 78.5), (11, 75.5), (25, 75.5), (25, 78.5)])
sketch20.addConstraint([
    Sketcher.Constraint("Vertical", 0),
    Sketcher.Constraint("Horizontal", 1),
    Sketcher.Constraint("Vertical", 2),
    Sketcher.Constraint("Horizontal", 3),
    Sketcher.Constraint("DistanceX", 1, 1, 1, 2, 14.0),
    Sketcher.Constraint("DistanceY", 0, 2, 0, 1, 3.0),
    Sketcher.Constraint("DistanceX", -1, 1, 0, 2, 11.0),
    Sketcher.Constraint("DistanceY", -1, 1, 0, 2, 75.5),
])
pad20 = body41.newObject("PartDesign::Pad", "Pad019")
pad20.Profile = sketch20
pad20.Length = 4
doc.recompute()

boolean36 = body41.newObject("PartDesign::Boolean", "Boolean035")
boolean36.Type = "Fuse"
boolean36.addObjects([body21])
doc.recompute()

boolean37 = body41.newObject("PartDesign::Boolean", "Boolean036")
boolean37.Type = "Fuse"
boolean37.addObjects([body40])
doc.recompute()

boolean38 = body41.newObject("PartDesign::Boolean", "Boolean037")
boolean38.Type = "Cut"
boolean38.addObjects([body20])
doc.recompute()

fillet3 = body41.newObject("PartDesign::Fillet", "Fillet002")
fillet3.Base = (boolean38, edges_at(boolean38, [
    (25, 78.5, 111),
    (11, 78.5, 111),
    (11, 78.5, 129),
    (25, 78.5, 129),
    (11, -6.5, 129),
    (25, -6.5, 129),
    (11, -6.5, 111),
    (25, -6.5, 111),
]))
fillet3.Radius = 1
doc.recompute()

boolean39 = body41.newObject("PartDesign::Boolean", "Boolean038")
boolean39.Type = "Cut"
boolean39.addObjects([body18])
doc.recompute()

boolean40 = body41.newObject("PartDesign::Boolean", "Boolean039")
boolean40.Type = "Fuse"
boolean40.addObjects([body16])

doc.recompute()
